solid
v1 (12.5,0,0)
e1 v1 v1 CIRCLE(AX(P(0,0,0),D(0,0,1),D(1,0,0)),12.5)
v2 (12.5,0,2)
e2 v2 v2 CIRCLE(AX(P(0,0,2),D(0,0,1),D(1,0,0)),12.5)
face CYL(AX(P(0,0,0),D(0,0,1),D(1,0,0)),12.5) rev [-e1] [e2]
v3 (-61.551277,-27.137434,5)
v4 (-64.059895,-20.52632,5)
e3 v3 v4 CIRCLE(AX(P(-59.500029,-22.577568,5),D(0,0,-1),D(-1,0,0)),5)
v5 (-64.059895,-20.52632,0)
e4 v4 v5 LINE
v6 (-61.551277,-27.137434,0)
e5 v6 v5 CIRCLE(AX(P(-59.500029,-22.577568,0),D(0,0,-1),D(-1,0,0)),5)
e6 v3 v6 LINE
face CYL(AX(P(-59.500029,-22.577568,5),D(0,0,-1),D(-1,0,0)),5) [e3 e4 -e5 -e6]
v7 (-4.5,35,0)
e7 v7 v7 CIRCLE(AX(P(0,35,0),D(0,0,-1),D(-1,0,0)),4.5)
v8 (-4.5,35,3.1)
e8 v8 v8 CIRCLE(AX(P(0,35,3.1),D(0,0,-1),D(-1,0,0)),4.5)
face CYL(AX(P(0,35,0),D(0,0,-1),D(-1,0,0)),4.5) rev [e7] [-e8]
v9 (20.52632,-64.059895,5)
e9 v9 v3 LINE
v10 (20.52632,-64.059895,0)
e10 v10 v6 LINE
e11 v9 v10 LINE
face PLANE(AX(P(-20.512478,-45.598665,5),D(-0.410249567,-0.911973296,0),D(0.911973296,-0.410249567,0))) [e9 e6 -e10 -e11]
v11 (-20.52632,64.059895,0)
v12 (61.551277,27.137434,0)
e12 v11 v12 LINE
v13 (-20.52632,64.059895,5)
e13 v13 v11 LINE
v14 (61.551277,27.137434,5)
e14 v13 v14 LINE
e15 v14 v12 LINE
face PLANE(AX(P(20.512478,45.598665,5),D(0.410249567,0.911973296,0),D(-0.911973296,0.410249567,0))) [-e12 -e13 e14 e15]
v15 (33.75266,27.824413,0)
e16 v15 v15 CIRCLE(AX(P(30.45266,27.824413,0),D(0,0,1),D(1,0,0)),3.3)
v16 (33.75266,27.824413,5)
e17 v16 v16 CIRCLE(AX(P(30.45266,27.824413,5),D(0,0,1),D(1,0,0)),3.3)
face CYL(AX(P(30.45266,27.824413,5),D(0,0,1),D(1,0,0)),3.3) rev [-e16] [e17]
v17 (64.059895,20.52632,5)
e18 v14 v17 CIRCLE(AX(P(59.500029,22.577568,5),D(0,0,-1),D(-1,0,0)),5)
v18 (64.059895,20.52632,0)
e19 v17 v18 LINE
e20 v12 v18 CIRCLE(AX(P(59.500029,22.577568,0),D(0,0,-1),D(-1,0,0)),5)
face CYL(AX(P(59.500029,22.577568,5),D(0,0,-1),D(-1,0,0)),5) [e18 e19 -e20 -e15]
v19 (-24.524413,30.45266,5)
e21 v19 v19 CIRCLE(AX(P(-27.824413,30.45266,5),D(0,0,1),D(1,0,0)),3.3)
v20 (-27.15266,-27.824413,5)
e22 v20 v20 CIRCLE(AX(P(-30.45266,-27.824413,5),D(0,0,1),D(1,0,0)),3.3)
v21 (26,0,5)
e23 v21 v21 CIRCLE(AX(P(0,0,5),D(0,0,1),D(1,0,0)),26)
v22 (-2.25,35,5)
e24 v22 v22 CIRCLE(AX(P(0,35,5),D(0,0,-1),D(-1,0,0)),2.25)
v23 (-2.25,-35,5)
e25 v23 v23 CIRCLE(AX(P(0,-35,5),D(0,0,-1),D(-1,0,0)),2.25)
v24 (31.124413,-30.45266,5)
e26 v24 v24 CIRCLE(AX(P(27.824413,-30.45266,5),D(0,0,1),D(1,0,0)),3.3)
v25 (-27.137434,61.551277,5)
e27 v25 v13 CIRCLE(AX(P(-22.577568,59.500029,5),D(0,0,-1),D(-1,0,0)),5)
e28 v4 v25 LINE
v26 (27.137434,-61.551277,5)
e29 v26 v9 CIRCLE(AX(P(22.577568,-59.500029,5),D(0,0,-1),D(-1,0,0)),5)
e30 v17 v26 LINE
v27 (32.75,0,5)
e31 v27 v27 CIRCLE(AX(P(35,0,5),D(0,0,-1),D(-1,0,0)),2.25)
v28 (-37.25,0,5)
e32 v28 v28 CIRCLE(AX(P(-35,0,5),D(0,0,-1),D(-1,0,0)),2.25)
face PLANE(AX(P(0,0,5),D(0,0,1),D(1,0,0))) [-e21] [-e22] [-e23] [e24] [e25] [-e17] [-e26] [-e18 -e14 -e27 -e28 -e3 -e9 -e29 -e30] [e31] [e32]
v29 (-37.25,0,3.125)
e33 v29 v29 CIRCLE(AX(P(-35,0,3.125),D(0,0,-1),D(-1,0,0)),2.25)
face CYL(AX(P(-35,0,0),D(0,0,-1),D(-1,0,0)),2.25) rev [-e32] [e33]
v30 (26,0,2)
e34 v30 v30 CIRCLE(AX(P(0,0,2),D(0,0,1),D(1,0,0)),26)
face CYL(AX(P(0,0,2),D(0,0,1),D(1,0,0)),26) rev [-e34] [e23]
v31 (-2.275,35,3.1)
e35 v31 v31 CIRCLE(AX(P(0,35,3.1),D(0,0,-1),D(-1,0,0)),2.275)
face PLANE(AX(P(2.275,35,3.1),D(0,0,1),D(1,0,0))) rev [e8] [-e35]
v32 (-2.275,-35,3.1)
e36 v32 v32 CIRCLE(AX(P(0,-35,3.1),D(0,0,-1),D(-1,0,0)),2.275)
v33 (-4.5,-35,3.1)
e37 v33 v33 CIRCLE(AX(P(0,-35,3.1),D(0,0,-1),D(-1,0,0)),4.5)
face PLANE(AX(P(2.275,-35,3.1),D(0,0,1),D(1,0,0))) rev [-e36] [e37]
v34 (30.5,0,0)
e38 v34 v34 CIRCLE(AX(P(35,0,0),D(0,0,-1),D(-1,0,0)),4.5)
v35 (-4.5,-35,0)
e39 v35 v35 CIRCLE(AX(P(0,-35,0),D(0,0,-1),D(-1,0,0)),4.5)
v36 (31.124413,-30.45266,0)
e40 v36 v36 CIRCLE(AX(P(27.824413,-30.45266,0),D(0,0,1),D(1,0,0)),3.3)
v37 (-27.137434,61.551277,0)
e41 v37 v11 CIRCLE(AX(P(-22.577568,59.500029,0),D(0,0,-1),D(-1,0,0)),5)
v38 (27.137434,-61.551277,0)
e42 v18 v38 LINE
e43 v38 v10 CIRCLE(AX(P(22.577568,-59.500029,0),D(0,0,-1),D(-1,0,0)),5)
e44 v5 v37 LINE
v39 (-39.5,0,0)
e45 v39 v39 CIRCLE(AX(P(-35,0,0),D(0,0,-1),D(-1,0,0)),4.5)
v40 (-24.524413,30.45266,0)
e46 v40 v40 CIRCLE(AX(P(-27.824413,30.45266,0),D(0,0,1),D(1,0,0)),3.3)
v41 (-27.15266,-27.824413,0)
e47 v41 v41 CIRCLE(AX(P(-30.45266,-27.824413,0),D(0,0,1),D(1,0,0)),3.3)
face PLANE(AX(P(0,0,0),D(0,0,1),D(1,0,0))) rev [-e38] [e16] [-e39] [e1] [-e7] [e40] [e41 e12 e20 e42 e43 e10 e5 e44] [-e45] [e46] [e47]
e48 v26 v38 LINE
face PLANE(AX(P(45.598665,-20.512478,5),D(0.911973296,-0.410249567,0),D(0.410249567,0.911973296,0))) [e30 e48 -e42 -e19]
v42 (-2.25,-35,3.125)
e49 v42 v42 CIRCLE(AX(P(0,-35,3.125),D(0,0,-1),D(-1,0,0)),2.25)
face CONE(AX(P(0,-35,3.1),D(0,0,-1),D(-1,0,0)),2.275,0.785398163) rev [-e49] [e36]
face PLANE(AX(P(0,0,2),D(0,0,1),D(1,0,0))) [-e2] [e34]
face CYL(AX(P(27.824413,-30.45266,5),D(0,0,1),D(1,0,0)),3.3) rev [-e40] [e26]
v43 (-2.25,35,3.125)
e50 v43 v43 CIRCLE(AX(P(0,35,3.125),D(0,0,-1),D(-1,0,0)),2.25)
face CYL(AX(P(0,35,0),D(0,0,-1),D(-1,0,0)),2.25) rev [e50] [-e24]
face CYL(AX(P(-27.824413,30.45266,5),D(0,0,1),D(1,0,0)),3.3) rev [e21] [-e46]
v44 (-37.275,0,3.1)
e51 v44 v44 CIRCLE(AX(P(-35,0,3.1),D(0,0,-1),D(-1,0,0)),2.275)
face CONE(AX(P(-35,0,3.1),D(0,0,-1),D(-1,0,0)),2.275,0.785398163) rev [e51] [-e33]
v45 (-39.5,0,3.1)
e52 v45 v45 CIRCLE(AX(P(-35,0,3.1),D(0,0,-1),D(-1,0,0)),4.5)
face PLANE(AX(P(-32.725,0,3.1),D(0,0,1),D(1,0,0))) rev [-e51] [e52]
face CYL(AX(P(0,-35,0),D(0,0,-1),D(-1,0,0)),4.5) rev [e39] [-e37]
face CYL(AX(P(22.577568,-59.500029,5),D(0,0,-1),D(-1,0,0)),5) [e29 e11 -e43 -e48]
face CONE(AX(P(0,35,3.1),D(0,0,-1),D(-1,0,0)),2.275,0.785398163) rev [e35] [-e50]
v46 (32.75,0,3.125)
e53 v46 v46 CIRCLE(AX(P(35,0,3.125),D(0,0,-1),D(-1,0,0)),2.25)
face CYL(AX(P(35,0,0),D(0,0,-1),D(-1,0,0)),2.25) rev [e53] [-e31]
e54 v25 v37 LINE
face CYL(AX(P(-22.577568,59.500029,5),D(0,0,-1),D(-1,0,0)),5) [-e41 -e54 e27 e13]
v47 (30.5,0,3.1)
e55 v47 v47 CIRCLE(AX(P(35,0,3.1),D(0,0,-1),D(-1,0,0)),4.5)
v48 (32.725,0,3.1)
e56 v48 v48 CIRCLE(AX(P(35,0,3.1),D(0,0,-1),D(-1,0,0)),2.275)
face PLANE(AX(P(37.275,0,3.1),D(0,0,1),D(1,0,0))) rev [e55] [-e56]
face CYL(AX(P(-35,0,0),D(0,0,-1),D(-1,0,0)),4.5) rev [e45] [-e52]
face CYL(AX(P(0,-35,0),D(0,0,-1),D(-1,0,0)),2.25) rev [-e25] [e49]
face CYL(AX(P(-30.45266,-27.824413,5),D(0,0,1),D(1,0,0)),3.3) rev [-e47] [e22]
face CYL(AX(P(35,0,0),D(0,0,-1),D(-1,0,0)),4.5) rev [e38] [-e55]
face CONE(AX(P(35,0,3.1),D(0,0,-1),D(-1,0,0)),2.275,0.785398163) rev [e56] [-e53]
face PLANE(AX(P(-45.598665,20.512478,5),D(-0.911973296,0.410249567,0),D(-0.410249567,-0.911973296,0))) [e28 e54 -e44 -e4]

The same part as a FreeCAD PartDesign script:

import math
import FreeCAD as App
import Part
import Sketcher
from FreeCAD import Vector
Q = App.Units.Quantity

doc = App.newDocument("Part")
params = doc.addObject("Spreadsheet::Sheet", "Params")
for row, (alias, value) in enumerate([
    ("sketch1_diameter", "100 mm"),
    ("pad1_length", "5 mm"),
    ("sketch2_diameter", "52 mm"),
    ("pocket1_length", "3 mm"),
    ("sketch3_diameter", "25 mm"),
    ("sketch4_height", "5 mm"),
    ("sketch4_width", "4.5 mm"),
    ("sketch4_height2", "3.1 mm"),
    ("sketch4_width2", "2.25 mm"),
    ("groove_angle", "360 deg"),
    ("linearpattern_pitch", "49.497475 mm"),
    ("linearpattern2_pitch", "70 mm"),
    ("linearpattern3_pitch", "49.497475 mm"),
    ("sketch5_diameter", "6.6 mm"),
    ("hole_diameter", "6.6 mm"),
    ("sketch6_radius", "5 mm"),
    ("sketch6_radius2", "50 mm"),
    ("pad2_length", "5 mm"),
], start=1):
    params.set(f"A{row}", alias)
    params.set(f"B{row}", "=" + value)
    params.setAlias(f"B{row}", alias)

body = doc.addObject("PartDesign::Body", "Body")

sketch1 = body.newObject("Sketcher::SketchObject", "Sketch")
sketch1.AttachmentSupport = (doc.getObject("XY_Plane"), [""])
sketch1.MapMode = "FlatFace"
sketch1.addGeometry(Part.Circle(Vector(0, 0, 0), Vector(0, 0, 1), 50), False)
sketch1.addConstraint(Sketcher.Constraint("Coincident", 0, 3, -1, 1))
sketch1.addConstraint(Sketcher.Constraint("Diameter", 0, Q("100 mm")))
sketch1.setExpression("Constraints[1]", "Params.sketch1_diameter")
pad1 = body.newObject("PartDesign::Pad", "Pad")
pad1.Profile = sketch1
pad1.setExpression("Length", "Params.pad1_length")

sketch2 = body.newObject("Sketcher::SketchObject", "Sketch001")
sketch2.AttachmentSupport = (doc.getObject("XY_Plane"), [""])
sketch2.MapMode = "FlatFace"
sketch2.AttachmentOffset = App.Placement(Vector(0, 0, 5), App.Rotation())
sketch2.addGeometry(Part.Circle(Vector(0, 0, 0), Vector(0, 0, 1), 26), False)
sketch2.addConstraint(Sketcher.Constraint("Coincident", 0, 3, -1, 1))
sketch2.addConstraint(Sketcher.Constraint("Diameter", 0, Q("52 mm")))
sketch2.setExpression("Constraints[1]", "Params.sketch2_diameter")
pocket1 = body.newObject("PartDesign::Pocket", "Pocket")
pocket1.Profile = sketch2
pocket1.setExpression("Length", "Params.pocket1_length")

sketch3 = body.newObject("Sketcher::SketchObject", "Sketch002")
sketch3.AttachmentSupport = (doc.getObject("XY_Plane"), [""])
sketch3.MapMode = "FlatFace"
sketch3.AttachmentOffset = App.Placement(Vector(0, 0, 5), App.Rotation())
sketch3.addGeometry(Part.Circle(Vector(0, 0, 0), Vector(0, 0, 1), 12), False)
sketch3.addConstraint(Sketcher.Constraint("Coincident", 0, 3, -1, 1))
sketch3.addConstraint(Sketcher.Constraint("Diameter", 0, Q("25 mm")))
sketch3.setExpression("Constraints[1]", "Params.sketch3_diameter")
pocket2 = body.newObject("PartDesign::Pocket", "Pocket001")
pocket2.Profile = sketch3
pocket2.Type = "ThroughAll"

sketch4 = body.newObject("Sketcher::SketchObject", "Sketch003")
sketch4.AttachmentSupport = (doc.getObject("YZ_Plane"), [""])
sketch4.MapMode = "FlatFace"
sketch4.addGeometry(Part.LineSegment(Vector(35, 5, 0), Vector(35, 0, 0)), False)
sketch4.addGeometry(Part.LineSegment(Vector(35, 0, 0), Vector(39.5, 0, 0)), False)
sketch4.addGeometry(Part.LineSegment(Vector(39.5, 0, 0), Vector(39.5, 3.1, 0)), False)
sketch4.addGeometry(Part.LineSegment(Vector(39.5, 3.1, 0), Vector(37.275, 3.1, 0)), False)
sketch4.addGeometry(Part.LineSegment(Vector(37.275, 3.1, 0), Vector(37.25, 3.125, 0)), False)
sketch4.addGeometry(Part.LineSegment(Vector(37.25, 3.125, 0), Vector(37.25, 5, 0)), False)
sketch4.addGeometry(Part.LineSegment(Vector(37.25, 5, 0), Vector(35, 5, 0)), False)
sketch4.addGeometry(Part.LineSegment(Vector(35, 0, 0), Vector(35, 5, 0)), True)
sketch4.addConstraint(Sketcher.Constraint("Coincident", 0, 2, 1, 1))
sketch4.addConstraint(Sketcher.Constraint("Coincident", 1, 2, 2, 1))
sketch4.addConstraint(Sketcher.Constraint("Coincident", 2, 2, 3, 1))
sketch4.addConstraint(Sketcher.Constraint("Coincident", 3, 2, 4, 1))
sketch4.addConstraint(Sketcher.Constraint("Coincident", 4, 2, 5, 1))
sketch4.addConstraint(Sketcher.Constraint("Coincident", 5, 2, 6, 1))
sketch4.addConstraint(Sketcher.Constraint("Coincident", 6, 2, 0, 1))
sketch4.addConstraint(Sketcher.Constraint("Vertical", 0))
sketch4.addConstraint(Sketcher.Constraint("Horizontal", 1))
sketch4.addConstraint(Sketcher.Constraint("Vertical", 2))
sketch4.addConstraint(Sketcher.Constraint("Horizontal", 3))
sketch4.addConstraint(Sketcher.Constraint("Vertical", 5))
sketch4.addConstraint(Sketcher.Constraint("Horizontal", 6))
sketch4.addConstraint(Sketcher.Constraint("Vertical", 7))
sketch4.addConstraint(Sketcher.Constraint("Coincident", 7, 1, 0, 2))
sketch4.addConstraint(Sketcher.Constraint("PointOnObject", 0, 2, -1))
sketch4.addConstraint(Sketcher.Constraint("Horizontal", 5, 2, 7, 2))
sketch4.addConstraint(Sketcher.Constraint("DistanceY", 0, 2, 0, 1, Q("5 mm")))
sketch4.addConstraint(Sketcher.Constraint("Angle", 4, Q("135 deg")))
sketch4.addConstraint(Sketcher.Constraint("DistanceX", 1, 1, 1, 2, Q("4.5 mm")))
sketch4.addConstraint(Sketcher.Constraint("DistanceY", 2, 1, 2, 2, Q("3.1 mm")))
sketch4.addConstraint(Sketcher.Constraint("DistanceX", -1, 1, 0, 2, Q("35 mm")))
sketch4.addConstraint(Sketcher.Constraint("DistanceX", 6, 2, 6, 1, Q("2.25 mm")))
sketch4.addConstraint(Sketcher.Constraint("DistanceX", 3, 2, 3, 1, Q("2.225 mm")))
sketch4.setExpression("Constraints[17]", "Params.sketch4_height")
sketch4.setExpression("Constraints[19]", "Params.sketch4_width")
sketch4.setExpression("Constraints[20]", "Params.sketch4_height2")
sketch4.setExpression("Constraints[22]", "Params.sketch4_width2")
groove = body.newObject("PartDesign::Groove", "Groove")
groove.Profile = sketch4
groove.ReferenceAxis = (sketch4, ["Axis0"])
groove.setExpression("Angle", "Params.groove_angle")
doc.recompute()

datumline = body.newObject("PartDesign::Line", "DatumLine")
datumline.Placement = App.Placement(Vector(0, 0, 0), App.Rotation(Vector(0, 0, 1), Vector(-0.707106781, -0.707106781, 0)))
linearpattern = body.newObject("PartDesign::LinearPattern", "LinearPattern")
linearpattern.Originals = [groove]
linearpattern.Direction = (datumline, [""])
linearpattern.Mode = "offset"
linearpattern.setExpression("Offset", "Params.linearpattern_pitch")
linearpattern.Occurrences = 2
body.Tip = linearpattern
doc.recompute()

linearpattern2 = body.newObject("PartDesign::LinearPattern", "LinearPattern001")
linearpattern2.Originals = [groove]
linearpattern2.Direction = (doc.getObject("Y_Axis"), [""])
linearpattern2.Mode = "offset"
linearpattern2.setExpression("Offset", "Params.linearpattern2_pitch")
linearpattern2.Occurrences = 2
linearpattern2.Reversed = True
body.Tip = linearpattern2
doc.recompute()

datumline2 = body.newObject("PartDesign::Line", "DatumLine001")
datumline2.Placement = App.Placement(Vector(0, 0, 0), App.Rotation(Vector(0, 0, 1), Vector(0.707106781, -0.707106781, 0)))
linearpattern3 = body.newObject("PartDesign::LinearPattern", "LinearPattern002")
linearpattern3.Originals = [groove]
linearpattern3.Direction = (datumline2, [""])
linearpattern3.Mode = "offset"
linearpattern3.setExpression("Offset", "Params.linearpattern3_pitch")
linearpattern3.Occurrences = 2
body.Tip = linearpattern3

sketch5 = body.newObject("Sketcher::SketchObject", "Sketch004")
sketch5.AttachmentSupport = (doc.getObject("XY_Plane"), [""])
sketch5.MapMode = "FlatFace"
sketch5.AttachmentOffset = App.Placement(Vector(0, 0, 5), App.Rotation())
sketch5.addGeometry(Part.Circle(Vector(30.5, 27.8, 0), Vector(0, 0, 1), 3.3), False)
sketch5.addGeometry(Part.Circle(Vector(-27.8, 30.5, 0), Vector(0, 0, 1), 3.3), False)
sketch5.addGeometry(Part.Circle(Vector(-30.5, -27.8, 0), Vector(0, 0, 1), 3.3), False)
sketch5.addGeometry(Part.Circle(Vector(27.8, -30.5, 0), Vector(0, 0, 1), 3.3), False)
sketch5.addConstraint(Sketcher.Constraint("Equal", 0, 1))
sketch5.addConstraint(Sketcher.Constraint("Equal", 1, 2))
sketch5.addConstraint(Sketcher.Constraint("Equal", 2, 3))
sketch5.addConstraint(Sketcher.Constraint("Symmetric", 0, 3, 2, 3, -1, 1))
sketch5.addConstraint(Sketcher.Constraint("Symmetric", 1, 3, 3, 3, -1, 1))
sketch5.addConstraint(Sketcher.Constraint("Diameter", 0, Q("6.6 mm")))
sketch5.addConstraint(Sketcher.Constraint("DistanceX", -1, 1, 0, 3, Q("30.45266 mm")))
sketch5.addConstraint(Sketcher.Constraint("DistanceY", -1, 1, 1, 3, Q("30.45266 mm")))
sketch5.addConstraint(Sketcher.Constraint("DistanceY", -1, 1, 0, 3, Q("27.824413 mm")))
sketch5.addConstraint(Sketcher.Constraint("DistanceX", 1, 3, -1, 1, Q("27.824413 mm")))
sketch5.setExpression("Constraints[5]", "Params.sketch5_diameter")
doc.recompute()
hole = body.newObject("PartDesign::Hole", "Hole")
hole.Profile = sketch5
hole.ThreadType = "None"
hole.setExpression("Diameter", "Params.hole_diameter")
hole.DepthType = "ThroughAll"

sketch6 = body.newObject("Sketcher::SketchObject", "Sketch005")
sketch6.AttachmentSupport = (doc.getObject("XY_Plane"), [""])
sketch6.MapMode = "FlatFace"
sketch6.addGeometry(Part.ArcOfCircle(Part.Circle(Vector(59.5, 22.6, 0), Vector(0, 0, 1), 5), math.radians(-24), math.radians(66)), False)
sketch6.addGeometry(Part.LineSegment(Vector(64.1, 20.5, 0), Vector(45.6, -20.5, 0)), False)
sketch6.addGeometry(Part.ArcOfCircle(Part.Circle(Vector(0, 0, 0), Vector(0, 0, 1), 50), math.radians(-24), math.radians(66)), False)
sketch6.addGeometry(Part.LineSegment(Vector(20.5, 45.6, 0), Vector(61.6, 27.1, 0)), False)
sketch6.addGeometry(Part.ArcOfCircle(Part.Circle(Vector(0, 0, 0), Vector(0, 0, 1), 50), math.radians(-114), math.radians(-24)), False)
sketch6.addGeometry(Part.LineSegment(Vector(45.6, -20.5, 0), Vector(27.1, -61.6, 0)), False)
sketch6.addGeometry(Part.ArcOfCircle(Part.Circle(Vector(22.6, -59.5, 0), Vector(0, 0, 1), 5), math.radians(-114), math.radians(-24)), False)
sketch6.addGeometry(Part.LineSegment(Vector(20.5, -64.1, 0), Vector(-20.5, -45.6, 0)), False)
sketch6.addGeometry(Part.LineSegment(Vector(-20.5, 64.1, 0), Vector(20.5, 45.6, 0)), False)
sketch6.addGeometry(Part.ArcOfCircle(Part.Circle(Vector(0, 0, 0), Vector(0, 0, 1), 50), math.radians(66), math.radians(156)), False)
sketch6.addGeometry(Part.LineSegment(Vector(-45.6, 20.5, 0), Vector(-27.1, 61.6, 0)), False)
sketch6.addGeometry(Part.ArcOfCircle(Part.Circle(Vector(-22.6, 59.5, 0), Vector(0, 0, 1), 5), math.radians(66), math.radians(156)), False)
sketch6.addGeometry(Part.ArcOfCircle(Part.Circle(Vector(0, 0, 0), Vector(0, 0, 1), 50), math.radians(156), math.radians(246)), False)
sketch6.addGeometry(Part.LineSegment(Vector(-20.5, -45.6, 0), Vector(-61.6, -27.1, 0)), False)
sketch6.addGeometry(Part.ArcOfCircle(Part.Circle(Vector(-59.5, -22.6, 0), Vector(0, 0, 1), 5), math.radians(156), math.radians(246)), False)
sketch6.addGeometry(Part.LineSegment(Vector(-64.1, -20.5, 0), Vector(-45.6, 20.5, 0)), False)
sketch6.addConstraint(Sketcher.Constraint("Tangent", 0, 1, 1, 1))
sketch6.addConstraint(Sketcher.Constraint("Tangent", 1, 2, 2, 1))
sketch6.addConstraint(Sketcher.Constraint("Tangent", 2, 2, 3, 1))
sketch6.addConstraint(Sketcher.Constraint("Tangent", 3, 2, 0, 2))
sketch6.addConstraint(Sketcher.Constraint("Tangent", 4, 2, 5, 1))
sketch6.addConstraint(Sketcher.Constraint("Tangent", 5, 2, 6, 2))
sketch6.addConstraint(Sketcher.Constraint("Tangent", 6, 1, 7, 1))
sketch6.addConstraint(Sketcher.Constraint("Tangent", 7, 2, 4, 1))
sketch6.addConstraint(Sketcher.Constraint("Tangent", 8, 2, 9, 1))
sketch6.addConstraint(Sketcher.Constraint("Tangent", 9, 2, 10, 1))
sketch6.addConstraint(Sketcher.Constraint("Tangent", 10, 2, 11, 2))
sketch6.addConstraint(Sketcher.Constraint("Tangent", 11, 1, 8, 1))
sketch6.addConstraint(Sketcher.Constraint("Tangent", 12, 2, 13, 1))
sketch6.addConstraint(Sketcher.Constraint("Tangent", 13, 2, 14, 2))
sketch6.addConstraint(Sketcher.Constraint("Tangent", 14, 1, 15, 1))
sketch6.addConstraint(Sketcher.Constraint("Tangent", 15, 2, 12, 1))
sketch6.addConstraint(Sketcher.Constraint("Coincident", 2, 3, -1, 1))
sketch6.addConstraint(Sketcher.Constraint("Coincident", 4, 3, -1, 1))
sketch6.addConstraint(Sketcher.Constraint("Coincident", 9, 3, -1, 1))
sketch6.addConstraint(Sketcher.Constraint("Coincident", 12, 3, -1, 1))
sketch6.addConstraint(Sketcher.Constraint("Coincident", 4, 2, 1, 2))
sketch6.addConstraint(Sketcher.Constraint("Coincident", 8, 2, 2, 2))
sketch6.addConstraint(Sketcher.Constraint("Coincident", 12, 2, 7, 2))
sketch6.addConstraint(Sketcher.Constraint("Equal", 0, 6))
sketch6.addConstraint(Sketcher.Constraint("Equal", 6, 11))
sketch6.addConstraint(Sketcher.Constraint("Equal", 11, 14))
sketch6.addConstraint(Sketcher.Constraint("Symmetric", 6, 3, 11, 3, -1, 1))
sketch6.addConstraint(Sketcher.Constraint("Perpendicular", 1, 3))
sketch6.addConstraint(Sketcher.Constraint("Perpendicular", 13, 15))
sketch6.addConstraint(Sketcher.Constraint("Radius", 0, Q("5 mm")))
sketch6.addConstraint(Sketcher.Constraint("Radius", 2, Q("50 mm")))
sketch6.addConstraint(Sketcher.Constraint("DistanceY", 1, 2, 0, 1, Q("41.038798 mm")))
sketch6.setExpression("Constraints[29]", "Params.sketch6_radius")
sketch6.setExpression("Constraints[30]", "Params.sketch6_radius2")
pad2 = body.newObject("PartDesign::Pad", "Pad001")
pad2.Profile = sketch6
pad2.setExpression("Length", "Params.pad2_length")

doc.recompute()
